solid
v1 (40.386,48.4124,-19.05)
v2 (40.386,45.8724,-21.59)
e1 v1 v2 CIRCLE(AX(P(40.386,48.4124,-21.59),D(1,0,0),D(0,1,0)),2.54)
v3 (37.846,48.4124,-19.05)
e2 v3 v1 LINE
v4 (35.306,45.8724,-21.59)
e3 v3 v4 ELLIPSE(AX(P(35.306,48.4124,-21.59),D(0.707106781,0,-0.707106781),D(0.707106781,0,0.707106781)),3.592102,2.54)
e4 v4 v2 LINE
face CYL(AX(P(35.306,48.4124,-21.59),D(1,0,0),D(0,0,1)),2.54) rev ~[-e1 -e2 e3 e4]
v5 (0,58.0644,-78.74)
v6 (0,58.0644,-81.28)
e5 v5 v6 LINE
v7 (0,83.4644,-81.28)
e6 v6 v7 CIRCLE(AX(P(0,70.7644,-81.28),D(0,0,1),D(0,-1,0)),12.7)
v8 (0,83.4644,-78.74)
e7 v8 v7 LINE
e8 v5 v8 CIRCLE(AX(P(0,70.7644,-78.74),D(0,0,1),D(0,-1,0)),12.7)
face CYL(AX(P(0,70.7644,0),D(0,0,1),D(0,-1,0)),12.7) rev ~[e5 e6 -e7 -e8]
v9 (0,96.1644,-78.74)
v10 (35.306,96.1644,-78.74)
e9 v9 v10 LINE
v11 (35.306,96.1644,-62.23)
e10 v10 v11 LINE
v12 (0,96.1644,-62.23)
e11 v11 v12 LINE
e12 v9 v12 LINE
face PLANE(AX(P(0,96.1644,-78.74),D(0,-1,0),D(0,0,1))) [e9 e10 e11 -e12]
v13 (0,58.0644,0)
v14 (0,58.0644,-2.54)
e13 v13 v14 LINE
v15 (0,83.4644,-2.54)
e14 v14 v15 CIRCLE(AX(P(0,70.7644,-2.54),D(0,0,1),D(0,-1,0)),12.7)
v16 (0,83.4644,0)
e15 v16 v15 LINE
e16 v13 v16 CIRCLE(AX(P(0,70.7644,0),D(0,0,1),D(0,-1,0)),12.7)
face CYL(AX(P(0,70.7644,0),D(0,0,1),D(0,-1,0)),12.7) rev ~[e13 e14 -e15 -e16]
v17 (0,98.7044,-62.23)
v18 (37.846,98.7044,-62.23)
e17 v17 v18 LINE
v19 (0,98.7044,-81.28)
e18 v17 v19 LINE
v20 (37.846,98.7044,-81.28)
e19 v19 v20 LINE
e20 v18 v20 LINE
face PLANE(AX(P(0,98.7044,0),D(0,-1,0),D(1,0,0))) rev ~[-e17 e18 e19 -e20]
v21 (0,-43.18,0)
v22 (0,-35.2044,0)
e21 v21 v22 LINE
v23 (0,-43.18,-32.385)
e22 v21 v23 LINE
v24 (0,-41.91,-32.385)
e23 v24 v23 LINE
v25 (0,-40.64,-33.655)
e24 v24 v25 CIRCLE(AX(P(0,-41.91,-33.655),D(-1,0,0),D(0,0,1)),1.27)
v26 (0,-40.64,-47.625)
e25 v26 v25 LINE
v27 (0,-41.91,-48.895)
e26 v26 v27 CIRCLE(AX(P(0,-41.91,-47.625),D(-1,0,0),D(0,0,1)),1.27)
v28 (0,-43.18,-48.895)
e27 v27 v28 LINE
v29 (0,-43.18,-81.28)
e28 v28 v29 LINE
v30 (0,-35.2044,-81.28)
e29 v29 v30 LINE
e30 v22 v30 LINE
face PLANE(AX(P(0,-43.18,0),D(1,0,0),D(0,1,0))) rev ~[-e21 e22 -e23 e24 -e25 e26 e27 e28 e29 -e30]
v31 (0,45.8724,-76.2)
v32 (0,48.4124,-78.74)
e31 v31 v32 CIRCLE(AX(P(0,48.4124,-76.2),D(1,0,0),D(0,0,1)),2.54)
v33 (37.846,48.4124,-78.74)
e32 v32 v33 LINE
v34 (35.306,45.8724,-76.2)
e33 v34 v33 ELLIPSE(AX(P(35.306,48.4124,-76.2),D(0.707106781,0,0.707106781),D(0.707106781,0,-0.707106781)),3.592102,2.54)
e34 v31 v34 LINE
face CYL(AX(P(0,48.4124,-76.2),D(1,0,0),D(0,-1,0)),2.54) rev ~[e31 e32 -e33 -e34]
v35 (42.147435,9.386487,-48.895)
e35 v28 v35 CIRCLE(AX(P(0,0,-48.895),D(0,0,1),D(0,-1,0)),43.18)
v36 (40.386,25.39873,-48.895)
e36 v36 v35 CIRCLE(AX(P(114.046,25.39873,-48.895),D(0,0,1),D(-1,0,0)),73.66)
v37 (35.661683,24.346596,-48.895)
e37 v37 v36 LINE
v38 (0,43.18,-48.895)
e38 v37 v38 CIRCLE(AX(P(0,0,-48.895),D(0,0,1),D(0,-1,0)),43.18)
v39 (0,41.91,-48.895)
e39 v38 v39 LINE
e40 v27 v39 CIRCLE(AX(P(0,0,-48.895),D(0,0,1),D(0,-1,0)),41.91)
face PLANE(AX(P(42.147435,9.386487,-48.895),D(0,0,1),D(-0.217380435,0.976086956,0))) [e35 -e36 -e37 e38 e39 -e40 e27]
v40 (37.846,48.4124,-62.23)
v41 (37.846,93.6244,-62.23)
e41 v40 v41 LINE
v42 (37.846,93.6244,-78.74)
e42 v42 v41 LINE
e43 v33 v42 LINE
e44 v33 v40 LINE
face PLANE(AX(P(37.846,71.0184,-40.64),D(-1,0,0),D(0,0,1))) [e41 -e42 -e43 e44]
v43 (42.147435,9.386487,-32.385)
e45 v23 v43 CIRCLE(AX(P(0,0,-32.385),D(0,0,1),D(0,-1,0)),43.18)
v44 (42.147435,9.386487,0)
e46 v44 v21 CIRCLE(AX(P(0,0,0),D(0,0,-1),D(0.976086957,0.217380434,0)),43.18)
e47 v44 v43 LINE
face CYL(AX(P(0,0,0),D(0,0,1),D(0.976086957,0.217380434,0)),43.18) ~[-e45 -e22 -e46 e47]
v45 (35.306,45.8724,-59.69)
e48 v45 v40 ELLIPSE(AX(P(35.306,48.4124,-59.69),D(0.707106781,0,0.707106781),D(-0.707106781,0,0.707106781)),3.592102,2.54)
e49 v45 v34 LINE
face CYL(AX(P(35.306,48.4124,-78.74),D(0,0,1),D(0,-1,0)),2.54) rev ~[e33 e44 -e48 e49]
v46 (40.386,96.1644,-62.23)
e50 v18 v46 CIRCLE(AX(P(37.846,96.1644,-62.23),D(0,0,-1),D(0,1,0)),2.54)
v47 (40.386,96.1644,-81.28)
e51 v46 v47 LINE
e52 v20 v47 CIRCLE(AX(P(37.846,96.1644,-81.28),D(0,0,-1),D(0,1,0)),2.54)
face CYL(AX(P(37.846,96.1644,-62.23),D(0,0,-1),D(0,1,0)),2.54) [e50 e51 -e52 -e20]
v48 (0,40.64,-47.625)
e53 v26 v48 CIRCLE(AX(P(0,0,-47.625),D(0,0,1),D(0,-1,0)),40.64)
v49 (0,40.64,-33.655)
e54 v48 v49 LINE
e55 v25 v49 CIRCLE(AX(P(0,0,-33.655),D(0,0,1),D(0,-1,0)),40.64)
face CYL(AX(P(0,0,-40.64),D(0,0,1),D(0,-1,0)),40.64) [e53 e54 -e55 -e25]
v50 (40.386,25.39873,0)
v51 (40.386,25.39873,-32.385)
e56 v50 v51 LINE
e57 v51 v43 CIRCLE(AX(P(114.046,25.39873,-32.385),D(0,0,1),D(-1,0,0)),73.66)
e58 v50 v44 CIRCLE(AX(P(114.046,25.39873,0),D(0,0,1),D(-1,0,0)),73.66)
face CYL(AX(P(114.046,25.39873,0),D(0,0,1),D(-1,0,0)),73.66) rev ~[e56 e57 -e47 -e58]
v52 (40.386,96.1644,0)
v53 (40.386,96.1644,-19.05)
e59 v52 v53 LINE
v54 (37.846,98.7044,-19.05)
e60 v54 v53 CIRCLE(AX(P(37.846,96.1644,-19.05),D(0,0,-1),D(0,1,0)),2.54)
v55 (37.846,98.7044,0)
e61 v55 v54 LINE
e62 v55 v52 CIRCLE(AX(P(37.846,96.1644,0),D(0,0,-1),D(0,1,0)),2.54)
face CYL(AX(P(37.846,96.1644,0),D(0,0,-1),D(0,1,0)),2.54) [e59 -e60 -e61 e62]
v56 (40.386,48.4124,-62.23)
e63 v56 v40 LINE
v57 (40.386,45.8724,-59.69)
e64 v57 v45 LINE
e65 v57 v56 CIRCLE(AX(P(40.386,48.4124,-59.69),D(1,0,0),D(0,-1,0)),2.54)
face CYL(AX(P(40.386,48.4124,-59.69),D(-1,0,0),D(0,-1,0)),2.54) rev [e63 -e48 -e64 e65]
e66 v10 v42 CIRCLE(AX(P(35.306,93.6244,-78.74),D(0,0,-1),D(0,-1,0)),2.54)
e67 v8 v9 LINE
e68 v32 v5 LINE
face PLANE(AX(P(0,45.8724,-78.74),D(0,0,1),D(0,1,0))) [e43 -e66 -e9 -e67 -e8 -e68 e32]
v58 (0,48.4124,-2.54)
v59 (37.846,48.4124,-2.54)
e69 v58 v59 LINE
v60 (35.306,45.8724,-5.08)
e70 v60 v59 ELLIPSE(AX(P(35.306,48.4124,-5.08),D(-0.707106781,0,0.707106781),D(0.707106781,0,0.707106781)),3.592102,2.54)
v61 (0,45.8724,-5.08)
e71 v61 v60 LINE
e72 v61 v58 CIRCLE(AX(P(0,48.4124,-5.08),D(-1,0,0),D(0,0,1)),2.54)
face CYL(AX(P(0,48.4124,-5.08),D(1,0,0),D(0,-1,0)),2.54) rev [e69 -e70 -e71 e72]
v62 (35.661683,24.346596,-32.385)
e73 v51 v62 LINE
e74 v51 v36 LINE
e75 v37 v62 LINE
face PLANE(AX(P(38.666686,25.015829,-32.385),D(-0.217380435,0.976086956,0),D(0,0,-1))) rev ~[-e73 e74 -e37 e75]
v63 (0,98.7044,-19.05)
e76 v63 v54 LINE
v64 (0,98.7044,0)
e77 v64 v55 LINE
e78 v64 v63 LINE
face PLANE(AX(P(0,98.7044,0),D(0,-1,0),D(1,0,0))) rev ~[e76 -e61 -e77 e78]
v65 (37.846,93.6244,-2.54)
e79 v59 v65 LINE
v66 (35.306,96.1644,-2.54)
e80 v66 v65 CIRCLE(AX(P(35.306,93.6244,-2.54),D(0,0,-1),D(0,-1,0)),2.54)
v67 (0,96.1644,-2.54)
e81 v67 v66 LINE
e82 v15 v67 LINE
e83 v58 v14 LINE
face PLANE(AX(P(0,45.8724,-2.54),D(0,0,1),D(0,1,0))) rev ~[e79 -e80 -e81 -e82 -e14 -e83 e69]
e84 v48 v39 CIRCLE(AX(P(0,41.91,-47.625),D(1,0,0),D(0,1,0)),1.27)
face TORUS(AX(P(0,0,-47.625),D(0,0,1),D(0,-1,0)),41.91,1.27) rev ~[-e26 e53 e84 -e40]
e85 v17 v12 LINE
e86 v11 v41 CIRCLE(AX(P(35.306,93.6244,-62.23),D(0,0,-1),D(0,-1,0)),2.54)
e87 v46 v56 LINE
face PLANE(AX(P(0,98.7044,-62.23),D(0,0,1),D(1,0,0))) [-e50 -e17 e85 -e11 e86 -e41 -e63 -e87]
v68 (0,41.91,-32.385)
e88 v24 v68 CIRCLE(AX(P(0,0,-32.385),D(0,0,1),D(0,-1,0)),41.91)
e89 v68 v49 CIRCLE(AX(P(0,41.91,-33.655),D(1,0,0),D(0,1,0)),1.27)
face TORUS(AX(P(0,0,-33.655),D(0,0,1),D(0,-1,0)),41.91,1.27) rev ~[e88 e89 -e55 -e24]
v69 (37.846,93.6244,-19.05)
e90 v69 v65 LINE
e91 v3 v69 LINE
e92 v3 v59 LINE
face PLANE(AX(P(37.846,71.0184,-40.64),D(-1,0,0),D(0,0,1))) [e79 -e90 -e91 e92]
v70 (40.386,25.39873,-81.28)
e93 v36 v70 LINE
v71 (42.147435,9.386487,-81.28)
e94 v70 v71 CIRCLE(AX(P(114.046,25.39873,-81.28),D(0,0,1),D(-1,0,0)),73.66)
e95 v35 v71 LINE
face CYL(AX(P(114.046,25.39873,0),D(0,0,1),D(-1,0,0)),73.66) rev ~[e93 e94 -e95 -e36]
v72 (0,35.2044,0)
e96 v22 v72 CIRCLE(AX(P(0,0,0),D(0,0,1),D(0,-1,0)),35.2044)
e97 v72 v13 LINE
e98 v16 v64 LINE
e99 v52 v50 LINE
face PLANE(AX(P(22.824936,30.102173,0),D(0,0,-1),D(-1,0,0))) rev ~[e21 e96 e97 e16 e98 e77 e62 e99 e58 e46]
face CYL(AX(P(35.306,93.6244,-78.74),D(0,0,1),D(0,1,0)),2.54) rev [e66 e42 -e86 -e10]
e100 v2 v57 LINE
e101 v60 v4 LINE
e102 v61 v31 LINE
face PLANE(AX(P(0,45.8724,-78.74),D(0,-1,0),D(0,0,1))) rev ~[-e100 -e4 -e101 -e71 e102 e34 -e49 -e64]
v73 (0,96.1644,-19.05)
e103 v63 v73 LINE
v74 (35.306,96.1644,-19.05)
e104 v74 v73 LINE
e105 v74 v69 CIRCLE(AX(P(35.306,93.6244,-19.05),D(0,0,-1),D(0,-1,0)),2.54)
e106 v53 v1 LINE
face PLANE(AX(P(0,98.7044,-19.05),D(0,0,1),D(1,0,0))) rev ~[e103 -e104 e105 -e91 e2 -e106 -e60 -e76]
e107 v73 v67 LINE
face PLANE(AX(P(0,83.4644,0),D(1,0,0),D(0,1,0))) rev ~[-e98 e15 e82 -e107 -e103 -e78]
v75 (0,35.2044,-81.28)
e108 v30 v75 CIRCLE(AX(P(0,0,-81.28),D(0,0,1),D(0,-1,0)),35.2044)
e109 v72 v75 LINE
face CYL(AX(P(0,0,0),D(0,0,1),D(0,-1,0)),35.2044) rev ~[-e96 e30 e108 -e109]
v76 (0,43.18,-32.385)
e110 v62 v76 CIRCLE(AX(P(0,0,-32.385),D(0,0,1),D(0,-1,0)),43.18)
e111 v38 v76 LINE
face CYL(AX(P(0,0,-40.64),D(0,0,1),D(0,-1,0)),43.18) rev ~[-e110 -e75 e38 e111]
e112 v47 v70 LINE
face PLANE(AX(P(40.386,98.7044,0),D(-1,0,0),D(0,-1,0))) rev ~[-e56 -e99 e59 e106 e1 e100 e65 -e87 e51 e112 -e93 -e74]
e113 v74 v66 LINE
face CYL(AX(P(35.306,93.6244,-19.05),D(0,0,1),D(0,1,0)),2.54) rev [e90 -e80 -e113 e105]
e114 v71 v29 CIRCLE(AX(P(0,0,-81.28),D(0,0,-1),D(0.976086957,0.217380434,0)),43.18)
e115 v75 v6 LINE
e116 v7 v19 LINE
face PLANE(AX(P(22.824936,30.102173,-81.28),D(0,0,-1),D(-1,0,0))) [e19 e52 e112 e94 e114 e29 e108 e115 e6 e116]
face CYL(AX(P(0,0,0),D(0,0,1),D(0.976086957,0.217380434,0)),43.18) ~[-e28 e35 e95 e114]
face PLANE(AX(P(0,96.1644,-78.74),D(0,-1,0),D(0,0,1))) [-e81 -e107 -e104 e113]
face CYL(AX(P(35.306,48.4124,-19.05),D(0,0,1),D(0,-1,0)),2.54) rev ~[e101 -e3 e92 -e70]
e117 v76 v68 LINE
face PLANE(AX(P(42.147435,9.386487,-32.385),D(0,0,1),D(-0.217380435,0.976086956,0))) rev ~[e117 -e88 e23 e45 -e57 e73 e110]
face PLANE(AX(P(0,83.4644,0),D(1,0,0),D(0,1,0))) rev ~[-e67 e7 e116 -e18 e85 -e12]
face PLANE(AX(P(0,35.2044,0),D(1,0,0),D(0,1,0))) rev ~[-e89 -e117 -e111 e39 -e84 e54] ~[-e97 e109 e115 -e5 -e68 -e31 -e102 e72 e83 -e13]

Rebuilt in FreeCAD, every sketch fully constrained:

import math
import FreeCAD as App
import Part
import Sketcher
from FreeCAD import Vector
Q = App.Units.Quantity


def edges_at(feature, points):
    """Names of the edges that pass closest to the given points."""
    edges = feature.Shape.Edges
    near = lambda p: min(range(len(edges)), key=lambda i: edges[i].distToShape(Part.Vertex(*p))[0])
    return sorted({f"Edge{near(p) + 1}" for p in points})

doc = App.newDocument("Part")
body = doc.addObject("PartDesign::Body", "Body")

sketch1 = body.newObject("Sketcher::SketchObject", "Sketch")
sketch1.AttachmentSupport = (doc.getObject("XY_Plane"), [""])
sketch1.MapMode = "FlatFace"
sketch1.addGeometry(Part.ArcOfCircle(Part.Circle(Vector(0, 71, 0), Vector(0, 0, 1), 13), math.radians(-90), math.radians(90)), False)
sketch1.addGeometry(Part.LineSegment(Vector(0, 58, 0), Vector(0, 35, 0)), False)
sketch1.addGeometry(Part.ArcOfCircle(Part.Circle(Vector(0, 0, 0), Vector(0, 0, 1), 35), math.radians(-90), math.radians(90)), False)
sketch1.addGeometry(Part.LineSegment(Vector(0, -35, 0), Vector(0, -43, 0)), False)
sketch1.addGeometry(Part.ArcOfCircle(Part.Circle(Vector(0, 0, 0), Vector(0, 0, 1), 43), math.radians(-90), math.radians(13)), False)
sketch1.addGeometry(Part.ArcOfCircle(Part.Circle(Vector(114, 25, 0), Vector(0, 0, 1), 74), math.radians(-180), math.radians(-167.44)), False)
sketch1.addGeometry(Part.LineSegment(Vector(40, 25, 0), Vector(40, 99, 0)), False)
sketch1.addGeometry(Part.LineSegment(Vector(40, 99, 0), Vector(0, 99, 0)), False)
sketch1.addGeometry(Part.LineSegment(Vector(0, 99, 0), Vector(0, 83, 0)), False)
sketch1.addConstraint(Sketcher.Constraint("Coincident", 0, 1, 1, 1))
sketch1.addConstraint(Sketcher.Constraint("Coincident", 1, 2, 2, 2))
sketch1.addConstraint(Sketcher.Constraint("Coincident", 2, 1, 3, 1))
sketch1.addConstraint(Sketcher.Constraint("Coincident", 3, 2, 4, 1))
sketch1.addConstraint(Sketcher.Constraint("Tangent", 4, 2, 5, 2))
sketch1.addConstraint(Sketcher.Constraint("Tangent", 5, 1, 6, 1))
sketch1.addConstraint(Sketcher.Constraint("Coincident", 6, 2, 7, 1))
sketch1.addConstraint(Sketcher.Constraint("Coincident", 7, 2, 8, 1))
sketch1.addConstraint(Sketcher.Constraint("Coincident", 8, 2, 0, 2))
sketch1.addConstraint(Sketcher.Constraint("Vertical", 1))
sketch1.addConstraint(Sketcher.Constraint("Vertical", 3))
sketch1.addConstraint(Sketcher.Constraint("Vertical", 6))
sketch1.addConstraint(Sketcher.Constraint("Horizontal", 7))
sketch1.addConstraint(Sketcher.Constraint("Vertical", 8))
sketch1.addConstraint(Sketcher.Constraint("Coincident", 2, 3, -1, 1))
sketch1.addConstraint(Sketcher.Constraint("Coincident", 4, 3, -1, 1))
sketch1.addConstraint(Sketcher.Constraint("PointOnObject", 0, 3, -2))
sketch1.addConstraint(Sketcher.Constraint("PointOnObject", 0, 1, -2))
sketch1.addConstraint(Sketcher.Constraint("PointOnObject", 2, 1, -2))
sketch1.addConstraint(Sketcher.Constraint("PointOnObject", 7, 2, -2))
sketch1.addConstraint(Sketcher.Constraint("Radius", 0, Q("0.5 in")))
sketch1.addConstraint(Sketcher.Constraint("Radius", 4, Q("1.7 in")))
sketch1.addConstraint(Sketcher.Constraint("Radius", 5, Q("2.9 in")))
sketch1.addConstraint(Sketcher.Constraint("DistanceY", 1, 2, 1, 1, Q("0.9 in")))
sketch1.addConstraint(Sketcher.Constraint("DistanceY", 8, 2, 8, 1, Q("0.6 in")))
sketch1.addConstraint(Sketcher.Constraint("Radius", 2, Q("1.386 in")))
sketch1.addConstraint(Sketcher.Constraint("DistanceX", 7, 2, 7, 1, Q("1.59 in")))
pad1 = body.newObject("PartDesign::Pad", "Pad")
pad1.Profile = sketch1
pad1.Length = Q("3.2 in")
pad1.Reversed = True

sketch2 = body.newObject("Sketcher::SketchObject", "Sketch001")
sketch2.AttachmentSupport = (doc.getObject("YZ_Plane"), [""])
sketch2.MapMode = "FlatFace"
sketch2.addGeometry(Part.LineSegment(Vector(96, -79, 0), Vector(46, -79, 0)), False)
sketch2.addGeometry(Part.LineSegment(Vector(46, -79, 0), Vector(46, -3, 0)), False)
sketch2.addGeometry(Part.LineSegment(Vector(46, -3, 0), Vector(96, -3, 0)), False)
sketch2.addGeometry(Part.LineSegment(Vector(96, -3, 0), Vector(96, -79, 0)), False)
sketch2.addConstraint(Sketcher.Constraint("Coincident", 0, 2, 1, 1))
sketch2.addConstraint(Sketcher.Constraint("Coincident", 1, 2, 2, 1))
sketch2.addConstraint(Sketcher.Constraint("Coincident", 2, 2, 3, 1))
sketch2.addConstraint(Sketcher.Constraint("Coincident", 3, 2, 0, 1))
sketch2.addConstraint(Sketcher.Constraint("Horizontal", 0))
sketch2.addConstraint(Sketcher.Constraint("Vertical", 1))
sketch2.addConstraint(Sketcher.Constraint("Horizontal", 2))
sketch2.addConstraint(Sketcher.Constraint("Vertical", 3))
sketch2.addConstraint(Sketcher.Constraint("DistanceY", 1, 1, 1, 2, Q("3 in")))
sketch2.addConstraint(Sketcher.Constraint("DistanceX", 0, 2, 0, 1, Q("1.98 in")))
sketch2.addConstraint(Sketcher.Constraint("DistanceY", 0, 2, -1, 1, Q("3.1 in")))
sketch2.addConstraint(Sketcher.Constraint("DistanceX", -1, 1, 0, 2, Q("1.806 in")))
pocket1 = body.newObject("PartDesign::Pocket", "Pocket")
pocket1.Profile = sketch2
pocket1.Length = Q("1.49 in")
pocket1.Reversed = True

sketch3 = body.newObject("Sketcher::SketchObject", "Sketch002")
sketch3.AttachmentSupport = (doc.getObject("XZ_Plane"), [""])
sketch3.MapMode = "FlatFace"
sketch3.AttachmentOffset = App.Placement(Vector(0, 0, -3.886 * 25.4), App.Rotation())
sketch3.addGeometry(Part.LineSegment(Vector(0, -62, 0), Vector(0, -19, 0)), False)
sketch3.addGeometry(Part.LineSegment(Vector(0, -19, 0), Vector(40, -19, 0)), False)
sketch3.addGeometry(Part.LineSegment(Vector(40, -19, 0), Vector(40, -62, 0)), False)
sketch3.addGeometry(Part.LineSegment(Vector(40, -62, 0), Vector(0, -62, 0)), False)
sketch3.addConstraint(Sketcher.Constraint("Coincident", 0, 2, 1, 1))
sketch3.addConstraint(Sketcher.Constraint("Coincident", 1, 2, 2, 1))
sketch3.addConstraint(Sketcher.Constraint("Coincident", 2, 2, 3, 1))
sketch3.addConstraint(Sketcher.Constraint("Coincident", 3, 2, 0, 1))
sketch3.addConstraint(Sketcher.Constraint("Vertical", 0))
sketch3.addConstraint(Sketcher.Constraint("Horizontal", 1))
sketch3.addConstraint(Sketcher.Constraint("Vertical", 2))
sketch3.addConstraint(Sketcher.Constraint("Horizontal", 3))
sketch3.addConstraint(Sketcher.Constraint("PointOnObject", 0, 2, -2))
sketch3.addConstraint(Sketcher.Constraint("DistanceY", 0, 1, 0, 2, Q("1.7 in")))
sketch3.addConstraint(Sketcher.Constraint("DistanceX", 1, 1, 1, 2, Q("1.59 in")))
sketch3.addConstraint(Sketcher.Constraint("DistanceY", 0, 2, -1, 1, Q("0.75 in")))
pocket2 = body.newObject("PartDesign::Pocket", "Pocket001")
pocket2.Profile = sketch3
pocket2.Length = Q("2.08 in")
pocket2.Reversed = True
doc.recompute()

fillet = body.newObject("PartDesign::Fillet", "Fillet")
fillet.Base = (pocket2, edges_at(pocket2, [
    (18.923, 45.872, -78.74),
    (18.923, 45.872, -2.54),
    (37.846, 45.872, -10.795),
    (37.846, 45.872, -70.485),
]))
fillet.Radius = Q("0.1 in")
doc.recompute()

fillet2 = body.newObject("PartDesign::Fillet", "Fillet001")
fillet2.Base = (fillet, edges_at(fillet, [(37.846, 96.164, -70.485), (37.846, 96.164, -10.795)]))
fillet2.Radius = Q("0.1 in")
doc.recompute()

fillet3 = body.newObject("PartDesign::Fillet", "Fillet002")
fillet3.Base = (fillet2, edges_at(fillet2, [(37.846, 45.872, -19.05), (37.846, 45.872, -62.23)]))
fillet3.Radius = Q("0.1 in")
doc.recompute()

fillet4 = body.newObject("PartDesign::Fillet", "Fillet003")
fillet4.Base = (fillet3, edges_at(fillet3, [(40.386, 98.704, -71.755), (40.386, 98.704, -9.525)]))
fillet4.Radius = Q("0.1 in")

sketch4 = body.newObject("Sketcher::SketchObject", "Sketch003")
sketch4.AttachmentSupport = (doc.getObject("YZ_Plane"), [""])
sketch4.MapMode = "FlatFace"
sketch4.addGeometry(Part.LineSegment(Vector(-40.6, -48.9, 0), Vector(-43.2, -48.9, 0)), False)
sketch4.addGeometry(Part.LineSegment(Vector(-43.2, -48.9, 0), Vector(-43.2, -32.4, 0)), False)
sketch4.addGeometry(Part.LineSegment(Vector(-43.2, -32.4, 0), Vector(-40.6, -32.4, 0)), False)
sketch4.addGeometry(Part.LineSegment(Vector(-40.6, -32.4, 0), Vector(-40.6, -48.9, 0)), False)
sketch4.addConstraint(Sketcher.Constraint("Coincident", 0, 2, 1, 1))
sketch4.addConstraint(Sketcher.Constraint("Coincident", 1, 2, 2, 1))
sketch4.addConstraint(Sketcher.Constraint("Coincident", 2, 2, 3, 1))
sketch4.addConstraint(Sketcher.Constraint("Coincident", 3, 2, 0, 1))
sketch4.addConstraint(Sketcher.Constraint("Horizontal", 0))
sketch4.addConstraint(Sketcher.Constraint("Vertical", 1))
sketch4.addConstraint(Sketcher.Constraint("Horizontal", 2))
sketch4.addConstraint(Sketcher.Constraint("Vertical", 3))
sketch4.addConstraint(Sketcher.Constraint("DistanceX", 0, 2, 0, 1, Q("0.1 in")))
sketch4.addConstraint(Sketcher.Constraint("DistanceY", 1, 1, 1, 2, Q("0.65 in")))
sketch4.addConstraint(Sketcher.Constraint("DistanceX", 0, 2, -1, 1, Q("1.7 in")))
sketch4.addConstraint(Sketcher.Constraint("DistanceY", 0, 2, -1, 1, Q("1.925 in")))
groove = body.newObject("PartDesign::Groove", "Groove")
groove.Profile = sketch4
groove.ReferenceAxis = (sketch4, ["V_Axis"])
groove.Angle = 360

sketch5 = body.newObject("Sketcher::SketchObject", "Sketch004")
sketch5.Placement = App.Placement(Vector(42.147435, 9.386487, 0), App.Rotation(Vector(0, 0, -1), Vector(-0.217380435, 0.976086956, 0), Vector(0.976086956, 0.217380435, 0), "ZXY"))
sketch5.addGeometry(Part.LineSegment(Vector(32, 16, 0), Vector(32, 0, 0)), False)
sketch5.addGeometry(Part.LineSegment(Vector(32, 0, 0), Vector(49, 0, 0)), False)
sketch5.addGeometry(Part.LineSegment(Vector(49, 0, 0), Vector(49, 16, 0)), False)
sketch5.addGeometry(Part.LineSegment(Vector(49, 16, 0), Vector(32, 16, 0)), False)
sketch5.addConstraint(Sketcher.Constraint("Coincident", 0, 2, 1, 1))
sketch5.addConstraint(Sketcher.Constraint("Coincident", 1, 2, 2, 1))
sketch5.addConstraint(Sketcher.Constraint("Coincident", 2, 2, 3, 1))
sketch5.addConstraint(Sketcher.Constraint("Coincident", 3, 2, 0, 1))
sketch5.addConstraint(Sketcher.Constraint("Vertical", 0))
sketch5.addConstraint(Sketcher.Constraint("Horizontal", 1))
sketch5.addConstraint(Sketcher.Constraint("Vertical", 2))
sketch5.addConstraint(Sketcher.Constraint("Horizontal", 3))
sketch5.addConstraint(Sketcher.Constraint("PointOnObject", 0, 2, -1))
sketch5.addConstraint(Sketcher.Constraint("DistanceX", 1, 1, 1, 2, Q("0.65 in")))
sketch5.addConstraint(Sketcher.Constraint("DistanceX", -1, 1, 0, 2, Q("1.275 in")))
sketch5.addConstraint(Sketcher.Constraint("DistanceY", 0, 2, 0, 1, Q("16.012243 mm")))
pocket3 = body.newObject("PartDesign::Pocket", "Pocket002")
pocket3.Profile = sketch5
pocket3.Type = "UpToFirst"

sketch6 = body.newObject("Sketcher::SketchObject", "Sketch005")
sketch6.Placement = App.Placement(Vector(42.147435, 9.386487, 0), App.Rotation(Vector(0, 0, -1), Vector(-0.217380435, 0.976086956, 0), Vector(0.976086956, 0.217380435, 0), "ZXY"))
sketch6.addGeometry(Part.LineSegment(Vector(32, 16, 0), Vector(32, 0, 0)), False)
sketch6.addGeometry(Part.LineSegment(Vector(32, 0, 0), Vector(49, 0, 0)), False)
sketch6.addGeometry(Part.LineSegment(Vector(49, 0, 0), Vector(49, 16, 0)), False)
sketch6.addGeometry(Part.LineSegment(Vector(49, 16, 0), Vector(32, 16, 0)), False)
sketch6.addConstraint(Sketcher.Constraint("Coincident", 0, 2, 1, 1))
sketch6.addConstraint(Sketcher.Constraint("Coincident", 1, 2, 2, 1))
sketch6.addConstraint(Sketcher.Constraint("Coincident", 2, 2, 3, 1))
sketch6.addConstraint(Sketcher.Constraint("Coincident", 3, 2, 0, 1))
sketch6.addConstraint(Sketcher.Constraint("Vertical", 0))
sketch6.addConstraint(Sketcher.Constraint("Horizontal", 1))
sketch6.addConstraint(Sketcher.Constraint("Vertical", 2))
sketch6.addConstraint(Sketcher.Constraint("Horizontal", 3))
sketch6.addConstraint(Sketcher.Constraint("PointOnObject", 0, 2, -1))
sketch6.addConstraint(Sketcher.Constraint("DistanceX", 1, 1, 1, 2, Q("0.65 in")))
sketch6.addConstraint(Sketcher.Constraint("DistanceX", -1, 1, 0, 2, Q("1.275 in")))
sketch6.addConstraint(Sketcher.Constraint("DistanceY", 0, 2, 0, 1, Q("16.012243 mm")))
pocket4 = body.newObject("PartDesign::Pocket", "Pocket003")
pocket4.Profile = sketch6
pocket4.Length = Q("0.1 in")
pocket4.Reversed = True
doc.recompute()

fillet5 = body.newObject("PartDesign::Fillet", "Fillet004")
fillet5.Base = (pocket4, edges_at(pocket4, [(40.64, 0, -48.895), (40.64, 0, -32.385)]))
fillet5.Radius = Q("0.05 in")

doc.recompute()
